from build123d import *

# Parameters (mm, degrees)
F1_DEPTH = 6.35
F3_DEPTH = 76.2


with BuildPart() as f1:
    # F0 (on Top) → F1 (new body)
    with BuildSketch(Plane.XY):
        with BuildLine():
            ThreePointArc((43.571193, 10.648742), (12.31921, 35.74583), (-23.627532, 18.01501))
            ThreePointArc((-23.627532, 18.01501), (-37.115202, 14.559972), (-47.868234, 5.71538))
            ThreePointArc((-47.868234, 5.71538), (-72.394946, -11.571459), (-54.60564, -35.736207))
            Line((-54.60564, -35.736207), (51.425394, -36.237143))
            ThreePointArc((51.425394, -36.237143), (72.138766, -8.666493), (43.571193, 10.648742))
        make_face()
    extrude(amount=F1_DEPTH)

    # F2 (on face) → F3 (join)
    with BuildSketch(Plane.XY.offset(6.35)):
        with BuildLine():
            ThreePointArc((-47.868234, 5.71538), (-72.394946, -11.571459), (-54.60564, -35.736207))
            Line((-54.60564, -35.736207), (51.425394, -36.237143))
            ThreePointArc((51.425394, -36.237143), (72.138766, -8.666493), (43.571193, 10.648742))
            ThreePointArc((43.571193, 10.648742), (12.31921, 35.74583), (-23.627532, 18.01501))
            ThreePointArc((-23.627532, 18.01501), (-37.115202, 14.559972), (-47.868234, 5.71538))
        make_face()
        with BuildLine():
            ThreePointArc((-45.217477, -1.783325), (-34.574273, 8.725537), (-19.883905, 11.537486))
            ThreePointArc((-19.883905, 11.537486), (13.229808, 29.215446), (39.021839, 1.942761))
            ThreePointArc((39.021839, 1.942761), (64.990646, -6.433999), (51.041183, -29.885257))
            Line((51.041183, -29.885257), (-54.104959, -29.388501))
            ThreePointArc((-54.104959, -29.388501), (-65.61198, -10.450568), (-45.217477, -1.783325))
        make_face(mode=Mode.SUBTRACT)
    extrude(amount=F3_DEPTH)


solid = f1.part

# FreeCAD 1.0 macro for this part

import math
import FreeCAD as App
import Part
import Sketcher

V = App.Vector
Q = App.Units.Quantity

doc = App.newDocument("Part")
body = doc.addObject("PartDesign::Body", "Body")

# Sketch on XY plane
sketch1 = body.newObject("Sketcher::SketchObject", "Sketch")
sketch1.AttachmentSupport = (doc.getObject("XY_Plane"), [""])
sketch1.MapMode = "FlatFace"
sketch1.addGeometry([
    Part.ArcOfCircle(Part.Circle(V(8, -1, 0), V(0, 0, 1), 37), math.radians(19), math.radians(149)),  # 0
    Part.ArcOfCircle(Part.Circle(V(-23, -14, 0), V(0, 0, 1), 32), math.radians(92), math.radians(142)),  # 1
    Part.ArcOfCircle(Part.Circle(V(-52, -15, 0), V(0, 0, 1), 21), math.radians(80), math.radians(262)),  # 2
    Part.LineSegment(V(-55, -36, 0), V(51, -36, 0)),  # 3
    Part.ArcOfCircle(Part.Circle(V(49, -13, 0), V(0, 0, 1), 24), math.radians(-83), math.radians(102)),  # 4
], False)
sketch1.addConstraint([
    Sketcher.Constraint("Coincident", 0, 2, 1, 1),
    Sketcher.Constraint("Coincident", 1, 2, 2, 1),
    Sketcher.Constraint("Coincident", 2, 2, 3, 1),
    Sketcher.Constraint("Coincident", 3, 2, 4, 1),
    Sketcher.Constraint("Coincident", 4, 2, 0, 1),
    Sketcher.Constraint("Radius", 4, 23.799101),
    Sketcher.Constraint("Radius", 1, 32.075809),
    Sketcher.Constraint("Radius", 2, 21.00225),
    Sketcher.Constraint("Radius", 0, 37.288395),
    Sketcher.Constraint("DistanceX", 1, 3, 0, 3, 30.857499),
    Sketcher.Constraint("DistanceX", 1, 2, 0, 2, 24.240702),
    Sketcher.Constraint("DistanceX", 4, 2, 3, 2, 7.854201),
    Sketcher.Constraint("DistanceY", 0, 3, -1, 1, 1.320528),
    Sketcher.Constraint("DistanceY", 2, 3, -1, 1, 14.94088),
    Sketcher.Constraint("DistanceY", 4, 3, -1, 1, 12.598468),
    Sketcher.Constraint("DistanceY", -1, 1, 0, 2, 18.01501),
    Sketcher.Constraint("DistanceX", 2, 2, -1, 1, 54.60564),
    Sketcher.Constraint("DistanceX", 2, 3, 4, 3, 100.331461),
    Sketcher.Constraint("DistanceY", 2, 2, 0, 3, 34.415679),
])
pad1 = body.newObject("PartDesign::Pad", "Pad")
pad1.Profile = sketch1
pad1.Length = Q("0.25 in")

# Sketch on XY plane
sketch2 = body.newObject("Sketcher::SketchObject", "Sketch001")
sketch2.AttachmentSupport = (doc.getObject("XY_Plane"), [""])
sketch2.MapMode = "FlatFace"
sketch2.AttachmentOffset = App.Placement(V(0, 0, 0.25 * 25.4), App.Rotation())
sketch2.addGeometry([
    Part.ArcOfCircle(Part.Circle(V(-52, -15, 0), V(0, 0, 1), 21), math.radians(80), math.radians(262)),  # 0
    Part.LineSegment(V(-55, -36, 0), V(51, -36, 0)),  # 1
    Part.ArcOfCircle(Part.Circle(V(49, -13, 0), V(0, 0, 1), 24), math.radians(-83), math.radians(102)),  # 2
    Part.ArcOfCircle(Part.Circle(V(8, -1, 0), V(0, 0, 1), 37), math.radians(19), math.radians(149)),  # 3
    Part.ArcOfCircle(Part.Circle(V(-23, -14, 0), V(0, 0, 1), 32), math.radians(92), math.radians(142)),  # 4
    Part.ArcOfCircle(Part.Circle(V(-52, -15, 0), V(0, 0, 1), 15), math.radians(64), math.radians(260)),  # 5
    Part.ArcOfCircle(Part.Circle(V(-23, -14, 0), V(0, 0, 1), 26), math.radians(84), math.radians(152)),  # 6
    Part.ArcOfCircle(Part.Circle(V(8, -1, 0), V(0, 0, 1), 31), math.radians(6), math.radians(155)),  # 7
    Part.ArcOfCircle(Part.Circle(V(49, -13, 0), V(0, 0, 1), 17), math.radians(-82), math.radians(124)),  # 8
    Part.LineSegment(V(51, -30, 0), V(-54, -29, 0)),  # 9
], False)
sketch2.addConstraint([
    Sketcher.Constraint("Coincident", 0, 2, 1, 1),
    Sketcher.Constraint("Coincident", 1, 2, 2, 1),
    Sketcher.Constraint("Coincident", 2, 2, 3, 1),
    Sketcher.Constraint("Coincident", 3, 2, 4, 1),
    Sketcher.Constraint("Coincident", 4, 2, 0, 1),
    Sketcher.Constraint("Coincident", 5, 1, 6, 2),
    Sketcher.Constraint("Coincident", 6, 1, 7, 2),
    Sketcher.Constraint("Coincident", 7, 1, 8, 2),
    Sketcher.Constraint("Coincident", 8, 1, 9, 1),
    Sketcher.Constraint("Coincident", 9, 2, 5, 2),
    Sketcher.Constraint("Coincident", 5, 3, 0, 3),
    Sketcher.Constraint("Coincident", 6, 3, 4, 3),
    Sketcher.Constraint("Coincident", 7, 3, 3, 3),
    Sketcher.Constraint("Coincident", 8, 3, 2, 3),
    Sketcher.Constraint("Parallel", 1, 9),
    Sketcher.Constraint("Radius", 2, 23.799101),
    Sketcher.Constraint("Radius", 8, 17.449101),
    Sketcher.Constraint("Radius", 0, 21.00225),
    Sketcher.Constraint("Radius", 4, 32.075809),
    Sketcher.Constraint("Radius", 5, 14.65225),
    Sketcher.Constraint("Radius", 3, 37.288395),
    Sketcher.Constraint("Radius", 6, 25.725807),
    Sketcher.Constraint("Radius", 7, 30.938395),
    Sketcher.Constraint("DistanceY", 9, 2, -1, 1, 29.388501),
    Sketcher.Constraint("DistanceX", 4, 3, 3, 3, 30.857499),
    Sketcher.Constraint("DistanceY", 0, 3, 6, 3, 0.896498),
    Sketcher.Constraint("DistanceX", 0, 2, 5, 3, 2.940901),
    Sketcher.Constraint("DistanceX", 2, 2, 1, 2, 7.854201),
    Sketcher.Constraint("DistanceX", 4, 2, 3, 2, 24.240702),
    Sketcher.Constraint("DistanceY", 8, 1, 2, 2, 40.533999),
    Sketcher.Constraint("DistanceY", 0, 3, -1, 1, 14.94088),
    Sketcher.Constraint("DistanceY", 2, 3, -1, 1, 12.598468),
    Sketcher.Constraint("DistanceY", 3, 3, -1, 1, 1.320528),
    Sketcher.Constraint("DistanceX", 5, 3, -1, 1, 51.664739),
])
pad2 = body.newObject("PartDesign::Pad", "Pad001")
pad2.Profile = sketch2
pad2.Length = Q("3 in")

doc.recompute()
